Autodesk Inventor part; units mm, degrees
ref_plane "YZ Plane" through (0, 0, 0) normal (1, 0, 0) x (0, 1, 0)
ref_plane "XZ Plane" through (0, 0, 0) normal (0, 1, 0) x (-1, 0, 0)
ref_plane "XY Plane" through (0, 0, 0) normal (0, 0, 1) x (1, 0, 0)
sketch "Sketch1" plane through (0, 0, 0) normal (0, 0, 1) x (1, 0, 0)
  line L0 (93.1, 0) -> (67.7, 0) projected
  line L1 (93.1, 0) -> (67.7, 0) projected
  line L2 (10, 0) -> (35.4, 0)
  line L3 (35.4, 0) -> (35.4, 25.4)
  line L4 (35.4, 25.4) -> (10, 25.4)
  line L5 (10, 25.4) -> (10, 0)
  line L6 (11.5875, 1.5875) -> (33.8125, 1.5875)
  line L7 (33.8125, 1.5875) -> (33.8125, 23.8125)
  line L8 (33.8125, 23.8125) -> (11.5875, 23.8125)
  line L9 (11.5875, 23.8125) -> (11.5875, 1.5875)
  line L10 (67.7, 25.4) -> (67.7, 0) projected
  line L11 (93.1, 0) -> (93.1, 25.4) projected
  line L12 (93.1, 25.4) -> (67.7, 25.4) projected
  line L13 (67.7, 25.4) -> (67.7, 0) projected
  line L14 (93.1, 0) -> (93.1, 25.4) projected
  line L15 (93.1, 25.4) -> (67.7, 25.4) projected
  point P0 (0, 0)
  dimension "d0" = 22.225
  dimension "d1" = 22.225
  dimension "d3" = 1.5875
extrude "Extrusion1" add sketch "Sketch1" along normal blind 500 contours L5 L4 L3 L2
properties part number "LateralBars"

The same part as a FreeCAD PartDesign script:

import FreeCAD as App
import Part
import Sketcher
from FreeCAD import Vector
Q = App.Units.Quantity


def add_polygon(sketch, points):
    """Adds a closed chain of lines whose ends are joined by coincident constraints."""
    first, n = sketch.GeometryCount, len(points)
    for a, b in zip(points, points[1:] + points[:1]):
        sketch.addGeometry(Part.LineSegment(App.Vector(*a, 0), App.Vector(*b, 0)), False)
    for i in range(n):
        sketch.addConstraint(Sketcher.Constraint("Coincident", first + i, 2, first + (i + 1) % n, 1))

doc = App.newDocument("Part")
params = doc.addObject("Spreadsheet::Sheet", "Params")
for row, (alias, value) in enumerate([
    ("sketch1_width", "1 in"),
    ("sketch1_width2", "0.875 in"),
    ("pad1_length", "500 mm"),
], start=1):
    params.set(f"A{row}", alias)
    params.set(f"B{row}", "=" + value)
    params.setAlias(f"B{row}", alias)

body = doc.addObject("PartDesign::Body", "Body")

# Sketch on XY plane
sketch1 = body.newObject("Sketcher::SketchObject", "Sketch")
sketch1.AttachmentSupport = (doc.getObject("XY_Plane"), [""])
sketch1.MapMode = "FlatFace"
add_polygon(sketch1, [(10, 25), (10, 0), (35, 0), (35, 25)])  # lines 0-3
add_polygon(sketch1, [(34, 2), (12, 2), (12, 24), (34, 24)])  # lines 4-7
sketch1.addConstraint([
    Sketcher.Constraint("Vertical", 0),
    Sketcher.Constraint("Horizontal", 1),
    Sketcher.Constraint("Vertical", 2),
    Sketcher.Constraint("Horizontal", 3),
    Sketcher.Constraint("Horizontal", 4),
    Sketcher.Constraint("Vertical", 5),
    Sketcher.Constraint("Horizontal", 6),
    Sketcher.Constraint("Vertical", 7),
    Sketcher.Constraint("PointOnObject", 0, 2, -1),
    Sketcher.Constraint("Equal", 3, 0),
    Sketcher.Constraint("Equal", 6, 5),
    Sketcher.Constraint("DistanceX", 1, 1, 1, 2, Q("1 in")),
    Sketcher.Constraint("DistanceX", 4, 2, 4, 1, Q("0.875 in")),
    Sketcher.Constraint("DistanceY", -1, 1, 4, 2, Q("0.0625 in")),
    Sketcher.Constraint("DistanceX", 0, 2, 4, 2, Q("0.0625 in")),
    Sketcher.Constraint("DistanceX", -1, 1, 0, 2, Q("0.3937 in")),
])
sketch1.setExpression("Constraints[19]", "Params.sketch1_width")
sketch1.setExpression("Constraints[20]", "Params.sketch1_width2")
pad1 = body.newObject("PartDesign::Pad", "Pad")
pad1.Profile = sketch1
pad1.setExpression("Length", "Params.pad1_length")

doc.recompute()
